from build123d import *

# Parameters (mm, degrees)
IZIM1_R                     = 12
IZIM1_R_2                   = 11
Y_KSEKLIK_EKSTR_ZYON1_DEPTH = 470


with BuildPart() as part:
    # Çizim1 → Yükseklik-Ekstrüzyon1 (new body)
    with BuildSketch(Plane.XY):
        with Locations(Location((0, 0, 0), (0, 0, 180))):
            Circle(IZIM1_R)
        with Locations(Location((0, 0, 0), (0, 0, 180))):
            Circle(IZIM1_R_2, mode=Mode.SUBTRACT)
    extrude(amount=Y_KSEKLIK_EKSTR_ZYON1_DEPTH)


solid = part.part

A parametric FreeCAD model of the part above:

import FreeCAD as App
import Part
import Sketcher
from FreeCAD import Vector

doc = App.newDocument("Part")
body = doc.addObject("PartDesign::Body", "Body")

sketch1 = doc.addObject("Sketcher::SketchObject", "Sketch")
body.addObject(sketch1)
sketch1.AttachmentSupport = (doc.XY_Plane, [""])
sketch1.MapMode = "FlatFace"
sketch1.addGeometry([
    Part.Circle(Vector(0, 0, 0), Vector(0, 0, 1), 12),
    Part.Circle(Vector(0, 0, 0), Vector(0, 0, 1), 11),
], False)
sketch1.addConstraint([
    Sketcher.Constraint("Coincident", 0, 3, -1, 1),
    Sketcher.Constraint("Coincident", 1, 3, -1, 1),
    Sketcher.Constraint("Diameter", 0, 24.0),
    Sketcher.Constraint("Diameter", 1, 22.0),
])
pad1 = doc.addObject("PartDesign::Pad", "Pad")
body.addObject(pad1)
pad1.Profile = sketch1
pad1.Length = 470

doc.recompute()
